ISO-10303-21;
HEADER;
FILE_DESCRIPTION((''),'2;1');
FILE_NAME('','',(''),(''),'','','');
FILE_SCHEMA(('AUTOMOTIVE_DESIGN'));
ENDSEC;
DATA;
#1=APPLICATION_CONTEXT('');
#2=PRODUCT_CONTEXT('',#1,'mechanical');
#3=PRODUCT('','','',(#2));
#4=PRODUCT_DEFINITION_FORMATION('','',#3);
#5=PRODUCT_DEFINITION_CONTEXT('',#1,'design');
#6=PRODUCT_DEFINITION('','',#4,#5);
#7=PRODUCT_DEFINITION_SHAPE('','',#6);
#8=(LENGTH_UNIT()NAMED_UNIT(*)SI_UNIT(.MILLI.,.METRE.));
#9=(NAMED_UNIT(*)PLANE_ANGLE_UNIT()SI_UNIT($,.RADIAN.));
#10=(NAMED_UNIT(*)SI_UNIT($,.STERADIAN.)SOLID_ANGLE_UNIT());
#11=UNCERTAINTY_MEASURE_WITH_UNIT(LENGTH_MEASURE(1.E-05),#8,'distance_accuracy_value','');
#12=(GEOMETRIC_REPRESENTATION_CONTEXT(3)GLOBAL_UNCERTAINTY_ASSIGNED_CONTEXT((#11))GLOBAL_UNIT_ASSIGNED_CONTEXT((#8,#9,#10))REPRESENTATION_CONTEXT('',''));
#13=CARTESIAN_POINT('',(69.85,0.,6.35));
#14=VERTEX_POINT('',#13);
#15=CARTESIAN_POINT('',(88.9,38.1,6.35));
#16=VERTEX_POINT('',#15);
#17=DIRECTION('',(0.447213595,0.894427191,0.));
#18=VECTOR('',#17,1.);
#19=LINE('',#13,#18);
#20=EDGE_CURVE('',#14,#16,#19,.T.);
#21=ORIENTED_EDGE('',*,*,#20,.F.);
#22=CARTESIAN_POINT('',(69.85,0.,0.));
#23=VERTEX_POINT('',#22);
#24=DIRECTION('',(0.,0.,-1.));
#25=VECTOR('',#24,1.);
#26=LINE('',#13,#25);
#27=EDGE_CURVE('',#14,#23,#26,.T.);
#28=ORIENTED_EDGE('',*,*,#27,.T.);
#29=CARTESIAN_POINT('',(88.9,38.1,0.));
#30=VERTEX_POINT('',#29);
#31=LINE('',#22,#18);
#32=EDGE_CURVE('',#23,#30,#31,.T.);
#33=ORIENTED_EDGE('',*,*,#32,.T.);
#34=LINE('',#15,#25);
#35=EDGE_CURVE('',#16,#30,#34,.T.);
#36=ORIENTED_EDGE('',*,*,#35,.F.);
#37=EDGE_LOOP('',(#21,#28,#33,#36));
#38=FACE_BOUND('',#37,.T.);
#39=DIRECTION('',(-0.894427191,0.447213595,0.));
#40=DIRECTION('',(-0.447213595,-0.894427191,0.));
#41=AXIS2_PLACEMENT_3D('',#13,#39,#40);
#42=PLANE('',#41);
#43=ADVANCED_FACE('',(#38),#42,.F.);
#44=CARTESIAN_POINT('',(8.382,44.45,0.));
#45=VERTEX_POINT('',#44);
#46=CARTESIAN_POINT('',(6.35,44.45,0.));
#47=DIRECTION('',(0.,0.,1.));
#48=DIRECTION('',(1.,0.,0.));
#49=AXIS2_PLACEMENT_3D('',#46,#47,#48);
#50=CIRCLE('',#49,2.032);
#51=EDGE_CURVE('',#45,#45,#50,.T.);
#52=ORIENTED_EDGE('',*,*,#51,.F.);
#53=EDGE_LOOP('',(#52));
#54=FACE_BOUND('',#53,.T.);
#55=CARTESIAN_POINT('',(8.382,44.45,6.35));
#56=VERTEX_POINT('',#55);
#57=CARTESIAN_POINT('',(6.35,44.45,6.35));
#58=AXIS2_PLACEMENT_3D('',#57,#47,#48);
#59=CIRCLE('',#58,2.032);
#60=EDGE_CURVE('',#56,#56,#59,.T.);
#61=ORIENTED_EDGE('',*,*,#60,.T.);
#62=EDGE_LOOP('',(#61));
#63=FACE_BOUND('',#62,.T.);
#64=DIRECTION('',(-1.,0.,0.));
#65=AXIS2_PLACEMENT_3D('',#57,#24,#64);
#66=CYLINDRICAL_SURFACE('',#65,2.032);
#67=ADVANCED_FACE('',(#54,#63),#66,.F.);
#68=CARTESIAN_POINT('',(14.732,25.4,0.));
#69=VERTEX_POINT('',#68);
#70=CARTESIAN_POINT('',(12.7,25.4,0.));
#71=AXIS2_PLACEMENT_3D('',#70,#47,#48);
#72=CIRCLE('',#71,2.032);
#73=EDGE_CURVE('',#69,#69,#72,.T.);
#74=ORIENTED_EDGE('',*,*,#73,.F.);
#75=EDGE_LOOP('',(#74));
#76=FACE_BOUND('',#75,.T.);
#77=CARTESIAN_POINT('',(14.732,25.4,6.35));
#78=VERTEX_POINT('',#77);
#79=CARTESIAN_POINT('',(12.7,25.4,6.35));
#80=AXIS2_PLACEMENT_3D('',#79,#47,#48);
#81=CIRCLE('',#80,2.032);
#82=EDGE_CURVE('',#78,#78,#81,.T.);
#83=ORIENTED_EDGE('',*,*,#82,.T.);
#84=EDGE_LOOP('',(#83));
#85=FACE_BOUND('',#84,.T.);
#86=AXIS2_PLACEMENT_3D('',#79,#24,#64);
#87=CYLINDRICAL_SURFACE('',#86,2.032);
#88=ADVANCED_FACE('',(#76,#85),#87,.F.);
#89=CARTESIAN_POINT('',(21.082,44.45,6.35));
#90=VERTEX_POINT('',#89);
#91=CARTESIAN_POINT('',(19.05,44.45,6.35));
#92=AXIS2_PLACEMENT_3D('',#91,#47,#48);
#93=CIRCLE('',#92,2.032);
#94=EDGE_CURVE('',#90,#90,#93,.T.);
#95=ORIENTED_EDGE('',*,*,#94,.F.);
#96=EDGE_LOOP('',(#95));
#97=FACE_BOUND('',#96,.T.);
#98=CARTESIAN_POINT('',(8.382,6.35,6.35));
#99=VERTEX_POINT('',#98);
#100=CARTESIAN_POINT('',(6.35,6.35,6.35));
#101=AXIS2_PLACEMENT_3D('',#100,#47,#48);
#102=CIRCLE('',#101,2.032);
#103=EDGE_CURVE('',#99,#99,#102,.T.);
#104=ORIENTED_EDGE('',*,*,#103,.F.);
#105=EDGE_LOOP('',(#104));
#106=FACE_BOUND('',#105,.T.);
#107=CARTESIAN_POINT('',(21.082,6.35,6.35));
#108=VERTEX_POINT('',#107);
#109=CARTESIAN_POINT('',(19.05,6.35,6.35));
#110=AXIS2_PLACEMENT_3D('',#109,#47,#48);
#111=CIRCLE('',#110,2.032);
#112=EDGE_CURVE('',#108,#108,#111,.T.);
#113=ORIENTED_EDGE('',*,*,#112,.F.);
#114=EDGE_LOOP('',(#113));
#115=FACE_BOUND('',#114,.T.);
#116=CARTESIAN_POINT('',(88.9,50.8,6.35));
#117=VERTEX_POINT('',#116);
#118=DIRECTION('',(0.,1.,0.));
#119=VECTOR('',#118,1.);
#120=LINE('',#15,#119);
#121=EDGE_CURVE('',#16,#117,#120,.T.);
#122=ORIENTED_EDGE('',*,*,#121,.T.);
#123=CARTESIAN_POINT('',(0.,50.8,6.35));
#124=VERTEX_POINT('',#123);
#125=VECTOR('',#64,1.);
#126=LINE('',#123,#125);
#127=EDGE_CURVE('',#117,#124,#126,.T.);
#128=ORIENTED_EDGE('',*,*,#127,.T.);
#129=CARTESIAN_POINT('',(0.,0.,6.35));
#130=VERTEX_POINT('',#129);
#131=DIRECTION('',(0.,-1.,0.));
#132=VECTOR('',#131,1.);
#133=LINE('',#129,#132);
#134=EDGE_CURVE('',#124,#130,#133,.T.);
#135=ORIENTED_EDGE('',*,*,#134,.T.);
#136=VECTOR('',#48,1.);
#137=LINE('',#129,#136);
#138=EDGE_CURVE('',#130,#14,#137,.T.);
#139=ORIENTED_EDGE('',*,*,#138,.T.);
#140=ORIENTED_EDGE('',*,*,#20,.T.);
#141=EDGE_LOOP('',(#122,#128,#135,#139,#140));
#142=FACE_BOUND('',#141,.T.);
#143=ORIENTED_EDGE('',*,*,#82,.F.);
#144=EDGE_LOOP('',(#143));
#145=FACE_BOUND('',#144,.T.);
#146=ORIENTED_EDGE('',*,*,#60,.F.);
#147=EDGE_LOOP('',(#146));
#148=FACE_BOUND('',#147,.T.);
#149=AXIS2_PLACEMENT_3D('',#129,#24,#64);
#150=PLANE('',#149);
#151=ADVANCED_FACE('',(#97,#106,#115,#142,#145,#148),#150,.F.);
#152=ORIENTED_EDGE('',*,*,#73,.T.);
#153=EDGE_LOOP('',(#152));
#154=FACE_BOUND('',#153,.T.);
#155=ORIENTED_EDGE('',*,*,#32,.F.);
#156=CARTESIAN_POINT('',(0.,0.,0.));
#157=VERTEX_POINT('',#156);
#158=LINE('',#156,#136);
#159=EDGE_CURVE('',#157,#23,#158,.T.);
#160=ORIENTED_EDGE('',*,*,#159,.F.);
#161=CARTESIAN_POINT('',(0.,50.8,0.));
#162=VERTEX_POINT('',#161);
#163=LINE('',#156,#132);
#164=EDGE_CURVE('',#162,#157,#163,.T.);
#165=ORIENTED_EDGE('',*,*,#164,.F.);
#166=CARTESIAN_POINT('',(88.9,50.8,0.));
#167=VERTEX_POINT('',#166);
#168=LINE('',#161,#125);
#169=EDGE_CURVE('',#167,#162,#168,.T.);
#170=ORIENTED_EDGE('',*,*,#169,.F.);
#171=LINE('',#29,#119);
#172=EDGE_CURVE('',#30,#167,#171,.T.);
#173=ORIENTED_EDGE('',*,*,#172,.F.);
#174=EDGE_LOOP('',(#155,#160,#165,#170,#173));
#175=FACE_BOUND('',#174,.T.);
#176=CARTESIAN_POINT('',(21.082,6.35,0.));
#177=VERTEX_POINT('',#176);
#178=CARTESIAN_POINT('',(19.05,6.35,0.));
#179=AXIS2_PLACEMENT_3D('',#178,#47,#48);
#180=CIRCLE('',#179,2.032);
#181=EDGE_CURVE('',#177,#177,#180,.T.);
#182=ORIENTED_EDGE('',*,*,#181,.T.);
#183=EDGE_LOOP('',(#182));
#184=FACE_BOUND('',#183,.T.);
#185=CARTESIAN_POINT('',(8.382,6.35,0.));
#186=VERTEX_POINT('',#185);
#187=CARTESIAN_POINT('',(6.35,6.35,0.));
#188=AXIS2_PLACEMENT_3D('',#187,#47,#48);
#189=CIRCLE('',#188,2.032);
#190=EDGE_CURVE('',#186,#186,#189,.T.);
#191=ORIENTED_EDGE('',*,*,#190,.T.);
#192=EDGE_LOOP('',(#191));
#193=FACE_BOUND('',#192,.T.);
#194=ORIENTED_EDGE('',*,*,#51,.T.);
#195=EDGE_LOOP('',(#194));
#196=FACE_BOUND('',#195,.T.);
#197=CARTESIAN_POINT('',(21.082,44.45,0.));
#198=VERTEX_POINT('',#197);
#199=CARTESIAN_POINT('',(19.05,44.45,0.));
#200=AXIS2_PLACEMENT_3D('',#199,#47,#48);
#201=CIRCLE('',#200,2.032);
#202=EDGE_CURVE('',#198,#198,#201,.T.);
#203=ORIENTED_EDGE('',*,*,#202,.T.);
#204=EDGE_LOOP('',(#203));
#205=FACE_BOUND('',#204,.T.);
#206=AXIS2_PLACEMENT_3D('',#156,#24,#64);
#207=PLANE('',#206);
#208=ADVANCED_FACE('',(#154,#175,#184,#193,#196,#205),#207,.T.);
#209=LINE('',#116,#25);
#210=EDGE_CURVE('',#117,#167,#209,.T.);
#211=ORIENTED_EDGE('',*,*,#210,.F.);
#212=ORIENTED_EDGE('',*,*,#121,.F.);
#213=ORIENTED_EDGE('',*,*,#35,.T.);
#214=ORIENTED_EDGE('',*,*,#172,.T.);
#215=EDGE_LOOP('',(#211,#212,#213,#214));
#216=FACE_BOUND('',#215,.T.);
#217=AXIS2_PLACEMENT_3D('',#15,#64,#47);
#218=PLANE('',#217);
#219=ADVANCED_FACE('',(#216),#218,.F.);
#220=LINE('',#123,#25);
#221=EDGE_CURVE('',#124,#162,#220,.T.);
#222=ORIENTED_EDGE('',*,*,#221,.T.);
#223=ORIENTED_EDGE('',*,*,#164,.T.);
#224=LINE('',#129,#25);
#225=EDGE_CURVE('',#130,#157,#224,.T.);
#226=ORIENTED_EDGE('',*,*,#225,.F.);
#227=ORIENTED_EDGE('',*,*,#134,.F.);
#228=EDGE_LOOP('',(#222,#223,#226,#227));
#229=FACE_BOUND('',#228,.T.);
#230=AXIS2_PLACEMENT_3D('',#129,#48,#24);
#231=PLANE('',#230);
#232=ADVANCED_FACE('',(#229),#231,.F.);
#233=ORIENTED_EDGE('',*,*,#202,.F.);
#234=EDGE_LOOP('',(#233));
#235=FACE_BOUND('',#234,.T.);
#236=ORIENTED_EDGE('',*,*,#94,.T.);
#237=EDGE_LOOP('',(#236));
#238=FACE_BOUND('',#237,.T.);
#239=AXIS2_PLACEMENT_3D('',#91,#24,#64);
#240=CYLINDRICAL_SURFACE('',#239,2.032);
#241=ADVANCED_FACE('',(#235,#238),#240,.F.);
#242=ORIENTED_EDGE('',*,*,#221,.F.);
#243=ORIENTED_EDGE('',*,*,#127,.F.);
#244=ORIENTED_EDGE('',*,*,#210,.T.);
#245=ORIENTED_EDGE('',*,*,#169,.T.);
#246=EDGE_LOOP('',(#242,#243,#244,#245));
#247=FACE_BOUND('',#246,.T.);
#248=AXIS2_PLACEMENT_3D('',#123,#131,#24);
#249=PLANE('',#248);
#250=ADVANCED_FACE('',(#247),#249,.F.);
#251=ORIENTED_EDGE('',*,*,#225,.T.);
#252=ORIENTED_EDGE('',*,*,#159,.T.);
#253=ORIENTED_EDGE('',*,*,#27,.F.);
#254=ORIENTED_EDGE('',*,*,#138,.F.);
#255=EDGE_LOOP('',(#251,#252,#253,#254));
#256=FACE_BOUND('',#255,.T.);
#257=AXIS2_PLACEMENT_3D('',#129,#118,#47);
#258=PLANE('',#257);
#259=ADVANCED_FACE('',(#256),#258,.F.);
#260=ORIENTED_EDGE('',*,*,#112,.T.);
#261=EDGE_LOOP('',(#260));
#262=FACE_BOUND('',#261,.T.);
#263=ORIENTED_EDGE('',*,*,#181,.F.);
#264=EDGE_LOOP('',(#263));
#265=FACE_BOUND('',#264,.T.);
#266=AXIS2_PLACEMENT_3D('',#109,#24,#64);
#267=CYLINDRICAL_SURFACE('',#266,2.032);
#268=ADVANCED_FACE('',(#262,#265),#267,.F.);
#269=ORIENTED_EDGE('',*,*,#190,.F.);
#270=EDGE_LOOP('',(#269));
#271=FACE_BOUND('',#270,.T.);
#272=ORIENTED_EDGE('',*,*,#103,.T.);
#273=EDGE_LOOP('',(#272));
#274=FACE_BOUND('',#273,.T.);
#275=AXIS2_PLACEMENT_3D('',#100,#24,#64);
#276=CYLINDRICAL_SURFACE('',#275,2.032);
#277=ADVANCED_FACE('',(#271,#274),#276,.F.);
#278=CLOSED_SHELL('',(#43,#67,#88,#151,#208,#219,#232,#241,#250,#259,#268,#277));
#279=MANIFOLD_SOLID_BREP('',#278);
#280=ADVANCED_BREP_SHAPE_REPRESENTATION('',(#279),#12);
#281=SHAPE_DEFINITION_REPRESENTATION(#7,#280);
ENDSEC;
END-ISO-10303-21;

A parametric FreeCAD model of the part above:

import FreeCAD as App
import Part
import Sketcher

V = App.Vector
Q = App.Units.Quantity

doc = App.newDocument("Part")
body = doc.addObject("PartDesign::Body", "Body")

sketch1 = body.newObject("Sketcher::SketchObject", "Sketch")
sketch1.AttachmentSupport = (doc.getObject("XY_Plane"), [""])
sketch1.MapMode = "FlatFace"
sketch1.addGeometry([
    Part.LineSegment(V(69.8, 0, 0), V(88.9, 38.1, 0)),
    Part.LineSegment(V(88.9, 38.1, 0), V(88.9, 50.8, 0)),
    Part.LineSegment(V(88.9, 50.8, 0), V(0, 50.8, 0)),
    Part.LineSegment(V(0, 50.8, 0), V(0, 0, 0)),
    Part.LineSegment(V(0, 0, 0), V(69.8, 0, 0)),
    Part.Circle(V(6.3, 6.3, 0), V(0, 0, 1), 2),
    Part.Circle(V(19.1, 6.3, 0), V(0, 0, 1), 2),
    Part.Circle(V(12.7, 25.4, 0), V(0, 0, 1), 2),
    Part.Circle(V(6.3, 44.5, 0), V(0, 0, 1), 2),
    Part.Circle(V(19.1, 44.5, 0), V(0, 0, 1), 2),
], False)
sketch1.addConstraint([
    Sketcher.Constraint("Coincident", 0, 2, 1, 1),
    Sketcher.Constraint("Coincident", 1, 2, 2, 1),
    Sketcher.Constraint("Coincident", 2, 2, 3, 1),
    Sketcher.Constraint("Coincident", 3, 2, 4, 1),
    Sketcher.Constraint("Coincident", 4, 2, 0, 1),
    Sketcher.Constraint("Vertical", 1),
    Sketcher.Constraint("Horizontal", 2),
    Sketcher.Constraint("Vertical", 3),
    Sketcher.Constraint("Horizontal", 4),
    Sketcher.Constraint("Coincident", 3, 2, -1, 1),
    Sketcher.Constraint("Equal", 5, 6),
    Sketcher.Constraint("Equal", 6, 7),
    Sketcher.Constraint("Equal", 7, 8),
    Sketcher.Constraint("Equal", 8, 9),
    Sketcher.Constraint("Horizontal", 5, 3, 6, 3),
    Sketcher.Constraint("Horizontal", 8, 3, 9, 3),
    Sketcher.Constraint("Vertical", 5, 3, 8, 3),
    Sketcher.Constraint("Vertical", 6, 3, 9, 3),
    Sketcher.Constraint("Diameter", 5, Q("0.16 in")),
    Sketcher.Constraint("DistanceY", 3, 2, 3, 1, Q("2 in")),
    Sketcher.Constraint("DistanceX", 2, 2, 2, 1, Q("3.5 in")),
    Sketcher.Constraint("DistanceY", 1, 1, 1, 2, Q("0.5 in")),
    Sketcher.Constraint("DistanceY", -1, 1, 7, 3, Q("1 in")),
    Sketcher.Constraint("DistanceX", 7, 3, 0, 2, Q("3 in")),
    Sketcher.Constraint("DistanceX", 6, 3, 4, 2, Q("2 in")),
    Sketcher.Constraint("DistanceX", 4, 1, 4, 2, Q("2.75 in")),
    Sketcher.Constraint("DistanceX", 5, 3, 6, 3, Q("0.5 in")),
    Sketcher.Constraint("DistanceY", 5, 3, 8, 3, Q("1.5 in")),
    Sketcher.Constraint("DistanceY", -1, 1, 5, 3, Q("0.25 in")),
])
pad1 = body.newObject("PartDesign::Pad", "Pad")
pad1.Profile = sketch1
pad1.Length = Q("0.25 in")

doc.recompute()
